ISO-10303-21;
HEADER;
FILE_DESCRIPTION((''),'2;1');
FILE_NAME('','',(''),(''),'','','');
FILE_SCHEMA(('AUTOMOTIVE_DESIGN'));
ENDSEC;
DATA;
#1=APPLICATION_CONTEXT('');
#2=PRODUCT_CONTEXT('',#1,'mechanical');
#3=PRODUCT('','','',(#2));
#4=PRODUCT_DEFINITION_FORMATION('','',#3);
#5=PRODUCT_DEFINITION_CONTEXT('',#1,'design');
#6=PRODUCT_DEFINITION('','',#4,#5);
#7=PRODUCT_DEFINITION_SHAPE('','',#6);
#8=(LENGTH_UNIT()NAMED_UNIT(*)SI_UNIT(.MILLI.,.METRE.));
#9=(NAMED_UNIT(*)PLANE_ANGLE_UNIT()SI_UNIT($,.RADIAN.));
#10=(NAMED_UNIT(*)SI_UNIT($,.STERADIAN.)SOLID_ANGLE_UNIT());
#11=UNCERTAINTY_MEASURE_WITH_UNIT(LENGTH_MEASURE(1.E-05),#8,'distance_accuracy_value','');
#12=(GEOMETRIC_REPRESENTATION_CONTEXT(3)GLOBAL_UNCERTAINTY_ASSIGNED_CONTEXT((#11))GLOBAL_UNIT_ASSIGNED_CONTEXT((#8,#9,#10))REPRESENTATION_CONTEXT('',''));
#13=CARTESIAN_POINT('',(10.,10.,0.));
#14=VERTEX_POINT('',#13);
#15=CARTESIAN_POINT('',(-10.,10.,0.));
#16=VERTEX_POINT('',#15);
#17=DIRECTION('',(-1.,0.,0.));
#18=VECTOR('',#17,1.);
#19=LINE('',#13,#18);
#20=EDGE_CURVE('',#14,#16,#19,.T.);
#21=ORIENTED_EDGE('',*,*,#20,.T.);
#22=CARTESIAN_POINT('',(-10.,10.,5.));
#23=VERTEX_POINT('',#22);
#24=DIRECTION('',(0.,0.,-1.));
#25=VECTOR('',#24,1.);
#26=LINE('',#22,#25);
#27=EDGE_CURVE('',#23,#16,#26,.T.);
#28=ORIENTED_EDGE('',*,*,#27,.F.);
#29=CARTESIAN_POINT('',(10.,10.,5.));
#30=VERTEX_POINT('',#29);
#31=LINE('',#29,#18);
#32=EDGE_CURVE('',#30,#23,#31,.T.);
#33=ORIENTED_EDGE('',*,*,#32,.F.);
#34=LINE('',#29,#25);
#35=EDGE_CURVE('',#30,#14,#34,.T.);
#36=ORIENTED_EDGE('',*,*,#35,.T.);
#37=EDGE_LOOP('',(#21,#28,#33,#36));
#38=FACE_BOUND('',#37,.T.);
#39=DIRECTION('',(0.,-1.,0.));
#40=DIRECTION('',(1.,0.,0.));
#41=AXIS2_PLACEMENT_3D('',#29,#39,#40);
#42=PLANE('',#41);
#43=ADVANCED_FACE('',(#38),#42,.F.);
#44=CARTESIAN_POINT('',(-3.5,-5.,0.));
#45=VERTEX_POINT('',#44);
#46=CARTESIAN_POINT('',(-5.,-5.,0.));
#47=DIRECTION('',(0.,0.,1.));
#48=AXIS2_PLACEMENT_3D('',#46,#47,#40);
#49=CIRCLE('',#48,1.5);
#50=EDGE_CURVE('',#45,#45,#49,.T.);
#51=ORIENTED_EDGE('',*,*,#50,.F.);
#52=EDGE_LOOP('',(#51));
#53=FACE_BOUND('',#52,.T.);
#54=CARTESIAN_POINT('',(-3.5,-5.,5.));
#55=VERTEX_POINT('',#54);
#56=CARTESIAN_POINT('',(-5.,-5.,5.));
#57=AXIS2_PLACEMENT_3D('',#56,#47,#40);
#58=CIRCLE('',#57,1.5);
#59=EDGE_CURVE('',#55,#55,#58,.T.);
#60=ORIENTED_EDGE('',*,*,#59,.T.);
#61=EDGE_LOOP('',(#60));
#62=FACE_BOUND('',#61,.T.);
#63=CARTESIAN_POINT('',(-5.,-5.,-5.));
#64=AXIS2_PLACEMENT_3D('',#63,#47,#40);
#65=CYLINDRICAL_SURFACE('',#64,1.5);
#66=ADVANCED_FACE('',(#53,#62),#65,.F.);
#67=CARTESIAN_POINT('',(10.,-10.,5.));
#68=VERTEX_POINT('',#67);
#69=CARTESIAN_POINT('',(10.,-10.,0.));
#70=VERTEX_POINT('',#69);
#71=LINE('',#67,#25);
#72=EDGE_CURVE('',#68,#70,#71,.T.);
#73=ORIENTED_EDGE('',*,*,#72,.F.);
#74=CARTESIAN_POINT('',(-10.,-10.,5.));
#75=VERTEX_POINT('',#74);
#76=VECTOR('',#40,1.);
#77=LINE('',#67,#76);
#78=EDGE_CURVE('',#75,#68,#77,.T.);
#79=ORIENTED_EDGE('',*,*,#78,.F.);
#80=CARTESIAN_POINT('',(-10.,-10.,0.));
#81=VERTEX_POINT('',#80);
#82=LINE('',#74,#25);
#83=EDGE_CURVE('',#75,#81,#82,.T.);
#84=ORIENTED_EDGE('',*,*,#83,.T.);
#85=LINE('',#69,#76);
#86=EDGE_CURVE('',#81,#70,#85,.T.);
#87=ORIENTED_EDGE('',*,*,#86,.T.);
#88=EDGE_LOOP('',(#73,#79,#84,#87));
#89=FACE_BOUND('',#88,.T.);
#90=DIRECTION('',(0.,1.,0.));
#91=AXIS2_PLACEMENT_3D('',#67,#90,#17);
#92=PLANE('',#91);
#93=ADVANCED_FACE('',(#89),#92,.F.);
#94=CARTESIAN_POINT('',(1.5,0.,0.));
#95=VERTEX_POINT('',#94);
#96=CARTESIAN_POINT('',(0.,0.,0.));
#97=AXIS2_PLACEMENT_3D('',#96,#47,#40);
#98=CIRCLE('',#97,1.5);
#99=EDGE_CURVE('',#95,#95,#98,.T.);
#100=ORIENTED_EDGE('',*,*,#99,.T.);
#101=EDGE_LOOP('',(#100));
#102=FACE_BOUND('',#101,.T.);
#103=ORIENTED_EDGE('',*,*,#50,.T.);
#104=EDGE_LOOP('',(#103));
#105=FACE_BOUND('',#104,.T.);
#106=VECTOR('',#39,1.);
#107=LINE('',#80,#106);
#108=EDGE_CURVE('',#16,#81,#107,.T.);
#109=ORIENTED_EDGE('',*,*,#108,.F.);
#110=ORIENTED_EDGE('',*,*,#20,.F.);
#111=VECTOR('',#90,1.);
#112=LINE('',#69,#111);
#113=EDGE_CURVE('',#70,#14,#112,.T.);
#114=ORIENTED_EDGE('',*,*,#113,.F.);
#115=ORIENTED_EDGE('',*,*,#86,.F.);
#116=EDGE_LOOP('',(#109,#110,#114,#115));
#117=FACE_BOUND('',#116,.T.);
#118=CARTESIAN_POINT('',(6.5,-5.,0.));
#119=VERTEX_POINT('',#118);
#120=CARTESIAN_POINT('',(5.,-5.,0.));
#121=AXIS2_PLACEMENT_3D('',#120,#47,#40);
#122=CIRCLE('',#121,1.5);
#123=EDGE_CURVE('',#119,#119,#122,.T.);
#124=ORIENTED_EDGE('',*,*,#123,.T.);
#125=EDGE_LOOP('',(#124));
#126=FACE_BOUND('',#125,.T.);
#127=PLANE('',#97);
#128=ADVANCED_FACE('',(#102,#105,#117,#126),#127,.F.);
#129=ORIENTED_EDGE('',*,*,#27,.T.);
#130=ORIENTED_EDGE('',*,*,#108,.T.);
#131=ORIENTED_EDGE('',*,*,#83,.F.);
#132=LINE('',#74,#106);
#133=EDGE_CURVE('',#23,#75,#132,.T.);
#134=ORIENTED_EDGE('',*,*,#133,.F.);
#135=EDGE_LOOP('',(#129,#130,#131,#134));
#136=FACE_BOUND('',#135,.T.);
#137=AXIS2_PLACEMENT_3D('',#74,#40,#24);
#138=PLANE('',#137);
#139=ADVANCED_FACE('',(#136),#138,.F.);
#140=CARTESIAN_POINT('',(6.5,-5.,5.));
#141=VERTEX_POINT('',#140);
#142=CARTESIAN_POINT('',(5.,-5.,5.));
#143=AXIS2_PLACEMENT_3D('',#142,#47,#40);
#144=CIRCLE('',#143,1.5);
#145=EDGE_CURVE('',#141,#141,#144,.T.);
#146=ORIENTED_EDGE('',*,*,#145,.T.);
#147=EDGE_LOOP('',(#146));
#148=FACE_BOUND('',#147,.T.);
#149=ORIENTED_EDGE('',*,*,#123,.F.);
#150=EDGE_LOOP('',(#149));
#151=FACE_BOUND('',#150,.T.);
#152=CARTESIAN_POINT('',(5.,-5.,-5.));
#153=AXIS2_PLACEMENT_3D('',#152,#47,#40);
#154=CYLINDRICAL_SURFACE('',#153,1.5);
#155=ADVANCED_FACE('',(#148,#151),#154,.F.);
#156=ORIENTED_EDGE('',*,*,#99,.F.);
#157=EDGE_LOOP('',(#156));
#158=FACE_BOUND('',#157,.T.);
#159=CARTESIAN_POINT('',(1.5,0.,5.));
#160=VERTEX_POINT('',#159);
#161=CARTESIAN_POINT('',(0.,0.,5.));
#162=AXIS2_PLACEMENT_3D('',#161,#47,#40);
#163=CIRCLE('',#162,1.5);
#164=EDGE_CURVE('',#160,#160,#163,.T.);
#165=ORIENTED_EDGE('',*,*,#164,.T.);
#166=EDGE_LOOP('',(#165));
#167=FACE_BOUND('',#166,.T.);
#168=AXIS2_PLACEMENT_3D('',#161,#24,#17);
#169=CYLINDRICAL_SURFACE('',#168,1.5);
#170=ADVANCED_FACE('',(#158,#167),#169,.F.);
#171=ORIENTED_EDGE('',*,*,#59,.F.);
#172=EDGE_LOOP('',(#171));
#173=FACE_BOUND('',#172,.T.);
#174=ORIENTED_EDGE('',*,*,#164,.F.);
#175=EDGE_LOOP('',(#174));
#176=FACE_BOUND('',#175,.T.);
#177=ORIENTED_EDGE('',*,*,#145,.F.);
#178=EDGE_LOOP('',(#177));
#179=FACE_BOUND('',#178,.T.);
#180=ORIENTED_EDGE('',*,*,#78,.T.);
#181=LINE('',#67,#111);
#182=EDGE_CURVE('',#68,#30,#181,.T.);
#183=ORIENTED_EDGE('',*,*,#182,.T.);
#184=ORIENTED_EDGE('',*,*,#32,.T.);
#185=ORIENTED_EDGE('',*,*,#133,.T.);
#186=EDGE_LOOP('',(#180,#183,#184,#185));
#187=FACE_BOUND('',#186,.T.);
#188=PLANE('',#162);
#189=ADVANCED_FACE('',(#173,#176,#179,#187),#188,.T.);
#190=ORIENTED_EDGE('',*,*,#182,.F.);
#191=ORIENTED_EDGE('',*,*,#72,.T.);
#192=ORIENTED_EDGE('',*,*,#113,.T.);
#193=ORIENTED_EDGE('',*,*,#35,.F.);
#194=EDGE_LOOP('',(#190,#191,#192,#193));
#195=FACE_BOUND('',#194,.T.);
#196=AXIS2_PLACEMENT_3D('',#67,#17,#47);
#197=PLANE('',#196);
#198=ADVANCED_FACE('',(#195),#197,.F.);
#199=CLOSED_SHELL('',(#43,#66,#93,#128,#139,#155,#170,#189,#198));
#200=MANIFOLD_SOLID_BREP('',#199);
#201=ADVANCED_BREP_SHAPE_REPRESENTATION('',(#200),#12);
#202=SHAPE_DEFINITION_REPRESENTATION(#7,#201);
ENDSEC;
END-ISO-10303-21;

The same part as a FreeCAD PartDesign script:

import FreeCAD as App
import Part
import Sketcher
from FreeCAD import Vector
Q = App.Units.Quantity


def add_polygon(sketch, points):
    """Adds a closed chain of lines whose ends are joined by coincident constraints."""
    first, n = sketch.GeometryCount, len(points)
    for a, b in zip(points, points[1:] + points[:1]):
        sketch.addGeometry(Part.LineSegment(App.Vector(*a, 0), App.Vector(*b, 0)), False)
    for i in range(n):
        sketch.addConstraint(Sketcher.Constraint("Coincident", first + i, 2, first + (i + 1) % n, 1))

doc = App.newDocument("Part")
params = doc.addObject("Spreadsheet::Sheet", "Params")
for row, (alias, value) in enumerate([
    ("sketch1_diameter", "3 mm"),
    ("sketch1_width", "20 mm"),
    ("pad1_length", "5 mm"),
    ("sketch2_diameter", "3 mm"),
    ("pocket1_length", "10 mm"),
], start=1):
    params.set(f"A{row}", alias)
    params.set(f"B{row}", "=" + value)
    params.setAlias(f"B{row}", alias)

body = doc.addObject("PartDesign::Body", "Body")

sketch1 = body.newObject("Sketcher::SketchObject", "Sketch")
sketch1.AttachmentSupport = (doc.getObject("XY_Plane"), [""])
sketch1.MapMode = "FlatFace"
add_polygon(sketch1, [(-10, 10), (-10, -10), (10, -10), (10, 10)])
sketch1.addGeometry(Part.Circle(Vector(0, 0, 0), Vector(0, 0, 1), 1.5), False)
sketch1.addConstraint(Sketcher.Constraint("Vertical", 0))
sketch1.addConstraint(Sketcher.Constraint("Horizontal", 1))
sketch1.addConstraint(Sketcher.Constraint("Vertical", 2))
sketch1.addConstraint(Sketcher.Constraint("Horizontal", 3))
sketch1.addConstraint(Sketcher.Constraint("Coincident", 4, 3, -1, 1))
sketch1.addConstraint(Sketcher.Constraint("Symmetric", 0, 2, 2, 2, -1, 1))
sketch1.addConstraint(Sketcher.Constraint("Equal", 3, 0))
sketch1.addConstraint(Sketcher.Constraint("Diameter", 4, Q("3 mm")))
sketch1.addConstraint(Sketcher.Constraint("DistanceX", 1, 1, 1, 2, Q("20 mm")))
sketch1.setExpression("Constraints[11]", "Params.sketch1_diameter")
sketch1.setExpression("Constraints[12]", "Params.sketch1_width")
pad1 = body.newObject("PartDesign::Pad", "Pad")
pad1.Profile = sketch1
pad1.setExpression("Length", "Params.pad1_length")

sketch2 = body.newObject("Sketcher::SketchObject", "Sketch001")
sketch2.AttachmentSupport = (doc.getObject("XY_Plane"), [""])
sketch2.MapMode = "FlatFace"
sketch2.AttachmentOffset = App.Placement(Vector(0, 0, 5), App.Rotation())
sketch2.addGeometry(Part.Circle(Vector(-5, -5, 0), Vector(0, 0, 1), 1.5), False)
sketch2.addGeometry(Part.Circle(Vector(5, -5, 0), Vector(0, 0, 1), 1.5), False)
sketch2.addConstraint(Sketcher.Constraint("Equal", 0, 1))
sketch2.addConstraint(Sketcher.Constraint("Symmetric", 0, 3, 1, 3, -2))
sketch2.addConstraint(Sketcher.Constraint("Diameter", 0, Q("3 mm")))
sketch2.addConstraint(Sketcher.Constraint("DistanceX", 0, 3, -1, 1, Q("5 mm")))
sketch2.addConstraint(Sketcher.Constraint("DistanceY", 0, 3, -1, 1, Q("5 mm")))
sketch2.setExpression("Constraints[2]", "Params.sketch2_diameter")
pocket1 = body.newObject("PartDesign::Pocket", "Pocket")
pocket1.Profile = sketch2
pocket1.setExpression("Length", "Params.pocket1_length")

doc.recompute()
